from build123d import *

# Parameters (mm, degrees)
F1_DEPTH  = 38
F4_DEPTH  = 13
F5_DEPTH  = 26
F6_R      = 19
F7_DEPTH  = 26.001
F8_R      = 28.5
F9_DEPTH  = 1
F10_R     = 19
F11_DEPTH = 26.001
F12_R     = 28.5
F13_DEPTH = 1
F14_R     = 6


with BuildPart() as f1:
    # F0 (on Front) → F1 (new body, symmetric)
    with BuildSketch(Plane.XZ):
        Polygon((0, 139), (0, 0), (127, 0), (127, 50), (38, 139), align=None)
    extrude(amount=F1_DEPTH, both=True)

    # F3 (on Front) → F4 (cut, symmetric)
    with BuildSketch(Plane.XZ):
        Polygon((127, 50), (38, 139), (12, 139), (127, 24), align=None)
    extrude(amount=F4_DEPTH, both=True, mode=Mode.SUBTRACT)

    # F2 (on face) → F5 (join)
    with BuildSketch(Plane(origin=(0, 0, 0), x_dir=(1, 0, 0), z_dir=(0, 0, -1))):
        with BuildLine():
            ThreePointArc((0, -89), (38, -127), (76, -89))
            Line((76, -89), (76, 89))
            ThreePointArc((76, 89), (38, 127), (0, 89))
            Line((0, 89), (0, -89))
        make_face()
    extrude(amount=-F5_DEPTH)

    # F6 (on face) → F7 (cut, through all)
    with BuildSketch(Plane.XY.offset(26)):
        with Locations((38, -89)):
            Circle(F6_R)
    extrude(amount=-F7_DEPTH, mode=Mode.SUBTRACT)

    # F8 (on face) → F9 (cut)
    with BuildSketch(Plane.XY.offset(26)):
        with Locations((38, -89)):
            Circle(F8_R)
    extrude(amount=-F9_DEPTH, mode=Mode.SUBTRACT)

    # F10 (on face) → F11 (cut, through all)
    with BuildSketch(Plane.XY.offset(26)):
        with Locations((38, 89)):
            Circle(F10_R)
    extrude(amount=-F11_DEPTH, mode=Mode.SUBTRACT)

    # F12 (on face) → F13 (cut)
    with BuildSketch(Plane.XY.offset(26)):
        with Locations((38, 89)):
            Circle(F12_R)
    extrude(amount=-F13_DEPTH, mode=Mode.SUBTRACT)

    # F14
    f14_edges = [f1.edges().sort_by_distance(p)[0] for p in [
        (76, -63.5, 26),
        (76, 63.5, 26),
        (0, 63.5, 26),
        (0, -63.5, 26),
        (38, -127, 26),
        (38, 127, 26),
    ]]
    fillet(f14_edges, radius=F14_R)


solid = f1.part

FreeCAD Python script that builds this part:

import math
import FreeCAD as App
import Part
import Sketcher

V = App.Vector


def edges_at(feature, points):
    """Names of the edges that pass closest to the given points."""
    edges = feature.Shape.Edges
    near = lambda p: min(range(len(edges)), key=lambda i: edges[i].distToShape(Part.Vertex(*p))[0])
    return sorted({f"Edge{near(p) + 1}" for p in points})


def add_polygon(sketch, points):
    """Adds a closed chain of lines whose ends are joined by coincident constraints."""
    first, n = sketch.GeometryCount, len(points)
    for a, b in zip(points, points[1:] + points[:1]):
        sketch.addGeometry(Part.LineSegment(App.Vector(*a, 0), App.Vector(*b, 0)), False)
    for i in range(n):
        sketch.addConstraint(Sketcher.Constraint("Coincident", first + i, 2, first + (i + 1) % n, 1))

doc = App.newDocument("Part")
body = doc.addObject("PartDesign::Body", "Body")

sketch1 = body.newObject("Sketcher::SketchObject", "Sketch")
sketch1.AttachmentSupport = (doc.getObject("XZ_Plane"), [""])
sketch1.MapMode = "FlatFace"
add_polygon(sketch1, [(0, 139), (0, 0), (127, 0), (127, 50), (38, 139)])
sketch1.addConstraint([
    Sketcher.Constraint("Vertical", 0),
    Sketcher.Constraint("Horizontal", 1),
    Sketcher.Constraint("Vertical", 2),
    Sketcher.Constraint("Horizontal", 4),
    Sketcher.Constraint("Coincident", 0, 2, -1, 1),
    Sketcher.Constraint("DistanceX", 1, 1, 1, 2, 127.0),
    Sketcher.Constraint("DistanceX", 4, 2, 4, 1, 38.0),
    Sketcher.Constraint("DistanceY", 0, 2, 0, 1, 139.0),
    Sketcher.Constraint("DistanceY", 2, 1, 2, 2, 50.0),
])
pad1 = body.newObject("PartDesign::Pad", "Pad")
pad1.Profile = sketch1
pad1.Length = 76
pad1.Midplane = True

sketch2 = body.newObject("Sketcher::SketchObject", "Sketch001")
sketch2.AttachmentSupport = (doc.getObject("XZ_Plane"), [""])
sketch2.MapMode = "FlatFace"
add_polygon(sketch2, [(127, 50), (38, 139), (12, 139), (127, 24)])
sketch2.addConstraint([
    Sketcher.Constraint("Horizontal", 1),
    Sketcher.Constraint("Vertical", 3),
    Sketcher.Constraint("Parallel", 0, 2),
    Sketcher.Constraint("Equal", 1, 3),
    Sketcher.Constraint("DistanceX", 1, 2, 1, 1, 26.0),
    Sketcher.Constraint("DistanceX", -1, 1, 0, 2, 38.0),
    Sketcher.Constraint("DistanceY", -1, 1, 0, 2, 139.0),
    Sketcher.Constraint("DistanceX", -1, 1, 2, 2, 127.0),
])
pocket1 = body.newObject("PartDesign::Pocket", "Pocket")
pocket1.Profile = sketch2
pocket1.Length = 26
pocket1.Midplane = True

sketch3 = body.newObject("Sketcher::SketchObject", "Sketch002")
sketch3.AttachmentSupport = (doc.getObject("XY_Plane"), [""])
sketch3.MapMode = "FlatFace"
sketch3.addGeometry([
    Part.ArcOfCircle(Part.Circle(V(38, 89, 0), V(0, 0, 1), 38), math.radians(0), math.radians(180)),
    Part.LineSegment(V(76, 89, 0), V(76, -89, 0)),
    Part.ArcOfCircle(Part.Circle(V(38, -89, 0), V(0, 0, 1), 38), math.radians(180), math.radians(360)),
    Part.LineSegment(V(0, -89, 0), V(0, 89, 0)),
], False)
sketch3.addConstraint([
    Sketcher.Constraint("Tangent", 0, 1, 1, 1),
    Sketcher.Constraint("Tangent", 1, 2, 2, 2),
    Sketcher.Constraint("Tangent", 2, 1, 3, 1),
    Sketcher.Constraint("Tangent", 3, 2, 0, 2),
    Sketcher.Constraint("Vertical", 1),
    Sketcher.Constraint("Vertical", 3),
    Sketcher.Constraint("Symmetric", 2, 1, 3, 2, -1, 1),
    Sketcher.Constraint("Radius", 0, 38.0),
    Sketcher.Constraint("DistanceY", 1, 2, 1, 1, 178.0),
])
pad2 = body.newObject("PartDesign::Pad", "Pad001")
pad2.Profile = sketch3
pad2.Length = 26

sketch4 = body.newObject("Sketcher::SketchObject", "Sketch003")
sketch4.AttachmentSupport = (doc.getObject("XY_Plane"), [""])
sketch4.MapMode = "FlatFace"
sketch4.AttachmentOffset = App.Placement(V(0, 0, 26), App.Rotation())
sketch4.addGeometry(Part.Circle(V(38, -89, 0), V(0, 0, 1), 19), False)
sketch4.addConstraint([
    Sketcher.Constraint("Diameter", 0, 38.0),
    Sketcher.Constraint("DistanceX", -1, 1, 0, 3, 38.0),
    Sketcher.Constraint("DistanceY", 0, 3, -1, 1, 89.0),
])
pocket2 = body.newObject("PartDesign::Pocket", "Pocket001")
pocket2.Profile = sketch4
pocket2.Type = "ThroughAll"

sketch5 = body.newObject("Sketcher::SketchObject", "Sketch004")
sketch5.AttachmentSupport = (doc.getObject("XY_Plane"), [""])
sketch5.MapMode = "FlatFace"
sketch5.AttachmentOffset = App.Placement(V(0, 0, 26), App.Rotation())
sketch5.addGeometry(Part.Circle(V(38, -89, 0), V(0, 0, 1), 28.5), False)
sketch5.addConstraint([
    Sketcher.Constraint("Diameter", 0, 57.0),
    Sketcher.Constraint("DistanceX", -1, 1, 0, 3, 38.0),
    Sketcher.Constraint("DistanceY", 0, 3, -1, 1, 89.0),
])
pocket3 = body.newObject("PartDesign::Pocket", "Pocket002")
pocket3.Profile = sketch5
pocket3.Length = 1

sketch6 = body.newObject("Sketcher::SketchObject", "Sketch005")
sketch6.AttachmentSupport = (doc.getObject("XY_Plane"), [""])
sketch6.MapMode = "FlatFace"
sketch6.AttachmentOffset = App.Placement(V(0, 0, 26), App.Rotation())
sketch6.addGeometry(Part.Circle(V(38, 89, 0), V(0, 0, 1), 19), False)
sketch6.addConstraint([
    Sketcher.Constraint("Diameter", 0, 38.0),
    Sketcher.Constraint("DistanceX", -1, 1, 0, 3, 38.0),
    Sketcher.Constraint("DistanceY", -1, 1, 0, 3, 89.0),
])
pocket4 = body.newObject("PartDesign::Pocket", "Pocket003")
pocket4.Profile = sketch6
pocket4.Type = "ThroughAll"

sketch7 = body.newObject("Sketcher::SketchObject", "Sketch006")
sketch7.AttachmentSupport = (doc.getObject("XY_Plane"), [""])
sketch7.MapMode = "FlatFace"
sketch7.AttachmentOffset = App.Placement(V(0, 0, 26), App.Rotation())
sketch7.addGeometry(Part.Circle(V(38, 89, 0), V(0, 0, 1), 28.5), False)
sketch7.addConstraint([
    Sketcher.Constraint("Diameter", 0, 57.0),
    Sketcher.Constraint("DistanceX", -1, 1, 0, 3, 38.0),
    Sketcher.Constraint("DistanceY", -1, 1, 0, 3, 89.0),
])
pocket5 = body.newObject("PartDesign::Pocket", "Pocket004")
pocket5.Profile = sketch7
pocket5.Length = 1
doc.recompute()

fillet = body.newObject("PartDesign::Fillet", "Fillet")
fillet.Base = (pocket5, edges_at(pocket5, [
    (76, -63.5, 26),
    (76, 63.5, 26),
    (0, 63.5, 26),
    (0, -63.5, 26),
    (38, -127, 26),
    (38, 127, 26),
]))
fillet.Radius = 6

doc.recompute()
